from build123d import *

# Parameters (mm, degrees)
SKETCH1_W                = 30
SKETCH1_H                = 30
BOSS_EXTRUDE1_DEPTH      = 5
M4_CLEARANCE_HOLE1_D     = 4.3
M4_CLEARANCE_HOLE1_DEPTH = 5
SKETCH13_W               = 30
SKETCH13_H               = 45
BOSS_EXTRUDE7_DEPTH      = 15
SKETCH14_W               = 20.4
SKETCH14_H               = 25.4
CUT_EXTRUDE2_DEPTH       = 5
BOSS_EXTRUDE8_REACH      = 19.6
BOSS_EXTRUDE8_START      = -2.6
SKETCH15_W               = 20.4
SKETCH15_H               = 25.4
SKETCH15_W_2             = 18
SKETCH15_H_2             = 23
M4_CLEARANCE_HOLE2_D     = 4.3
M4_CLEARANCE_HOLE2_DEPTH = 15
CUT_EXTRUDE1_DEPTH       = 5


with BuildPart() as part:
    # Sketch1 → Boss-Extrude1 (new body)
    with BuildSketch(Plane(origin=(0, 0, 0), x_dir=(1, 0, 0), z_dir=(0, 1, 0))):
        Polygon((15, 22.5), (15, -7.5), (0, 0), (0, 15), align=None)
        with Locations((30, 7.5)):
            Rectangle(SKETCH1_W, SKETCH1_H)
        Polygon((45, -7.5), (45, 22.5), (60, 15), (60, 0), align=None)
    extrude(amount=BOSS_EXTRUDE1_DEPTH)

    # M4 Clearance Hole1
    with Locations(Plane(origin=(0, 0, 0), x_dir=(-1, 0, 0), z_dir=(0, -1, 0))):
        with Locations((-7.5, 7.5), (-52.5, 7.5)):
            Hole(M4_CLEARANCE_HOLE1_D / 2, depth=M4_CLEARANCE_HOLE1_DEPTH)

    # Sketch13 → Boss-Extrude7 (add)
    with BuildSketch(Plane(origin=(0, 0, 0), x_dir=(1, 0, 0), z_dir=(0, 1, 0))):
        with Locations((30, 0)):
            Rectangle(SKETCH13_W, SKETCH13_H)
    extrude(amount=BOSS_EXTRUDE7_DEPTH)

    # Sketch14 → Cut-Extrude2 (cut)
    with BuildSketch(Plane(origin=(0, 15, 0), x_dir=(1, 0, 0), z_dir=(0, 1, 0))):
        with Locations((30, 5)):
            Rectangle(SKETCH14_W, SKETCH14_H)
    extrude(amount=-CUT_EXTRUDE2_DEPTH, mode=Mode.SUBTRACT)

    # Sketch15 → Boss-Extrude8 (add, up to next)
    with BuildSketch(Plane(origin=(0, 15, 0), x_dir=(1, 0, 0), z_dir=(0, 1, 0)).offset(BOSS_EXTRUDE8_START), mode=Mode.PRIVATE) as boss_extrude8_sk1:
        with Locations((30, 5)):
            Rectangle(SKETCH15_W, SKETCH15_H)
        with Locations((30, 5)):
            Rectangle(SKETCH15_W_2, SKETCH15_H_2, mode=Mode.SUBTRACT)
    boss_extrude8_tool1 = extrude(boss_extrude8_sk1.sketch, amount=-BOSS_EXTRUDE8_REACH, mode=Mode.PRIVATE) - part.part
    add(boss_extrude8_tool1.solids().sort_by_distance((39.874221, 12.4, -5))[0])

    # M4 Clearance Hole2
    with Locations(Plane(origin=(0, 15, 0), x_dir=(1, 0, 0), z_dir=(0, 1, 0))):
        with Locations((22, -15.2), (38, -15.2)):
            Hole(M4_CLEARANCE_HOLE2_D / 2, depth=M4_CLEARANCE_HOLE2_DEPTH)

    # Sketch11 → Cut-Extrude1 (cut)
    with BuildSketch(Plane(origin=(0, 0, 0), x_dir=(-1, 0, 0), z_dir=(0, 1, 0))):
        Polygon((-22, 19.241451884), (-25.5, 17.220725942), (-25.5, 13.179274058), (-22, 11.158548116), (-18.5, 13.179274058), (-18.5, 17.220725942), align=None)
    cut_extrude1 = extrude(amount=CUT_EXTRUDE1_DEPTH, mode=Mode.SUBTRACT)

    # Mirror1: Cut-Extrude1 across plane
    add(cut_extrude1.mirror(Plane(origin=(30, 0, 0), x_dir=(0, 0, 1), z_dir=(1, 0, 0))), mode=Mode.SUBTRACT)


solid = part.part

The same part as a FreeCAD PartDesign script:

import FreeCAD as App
import Part
import Sketcher
Q = App.Units.Quantity


def add_polygon(sketch, points):
    """Adds a closed chain of lines whose ends are joined by coincident constraints."""
    first, n = sketch.GeometryCount, len(points)
    for a, b in zip(points, points[1:] + points[:1]):
        sketch.addGeometry(Part.LineSegment(App.Vector(*a, 0), App.Vector(*b, 0)), False)
    for i in range(n):
        sketch.addConstraint(Sketcher.Constraint("Coincident", first + i, 2, first + (i + 1) % n, 1))

doc = App.newDocument("Part")
body = doc.addObject("PartDesign::Body", "Body")

# Sketch on XZ plane
sketch1 = doc.addObject("Sketcher::SketchObject", "Sketch")
body.addObject(sketch1)
sketch1.AttachmentSupport = (doc.XZ_Plane, [""])
sketch1.MapMode = "FlatFace"
add_polygon(sketch1, [(0, 0), (15, 8), (45, 8), (60, 0), (60, -15), (45, -22), (15, -22), (0, -15)])  # lines 0-7
sketch1.addConstraint(Sketcher.Constraint("Horizontal", 1))
sketch1.addConstraint(Sketcher.Constraint("Vertical", 3))
sketch1.addConstraint(Sketcher.Constraint("Horizontal", 5))
sketch1.addConstraint(Sketcher.Constraint("Vertical", 7))
sketch1.addConstraint(Sketcher.Constraint("Coincident", 7, 2, -1, 1))
sketch1.addConstraint(Sketcher.Constraint("PointOnObject", 2, 2, -1))
sketch1.addConstraint(Sketcher.Constraint("Parallel", 0, 4))
sketch1.addConstraint(Sketcher.Constraint("Parallel", 2, 6))
sketch1.addConstraint(Sketcher.Constraint("Horizontal", 3, 2, 6, 2))
sketch1.addConstraint(Sketcher.Constraint("Vertical", 1, 2, 4, 2))
sketch1.addConstraint(Sketcher.Constraint("Vertical", 0, 2, 5, 2))
sketch1.addConstraint(Sketcher.Constraint("DistanceX", 1, 1, 1, 2, 30.0))
sketch1.addConstraint(Sketcher.Constraint("DistanceY", 3, 2, 3, 1, 15.0))
sketch1.addConstraint(Sketcher.Constraint("DistanceX", -1, 1, 0, 2, 15.0))
sketch1.addConstraint(Sketcher.Constraint("DistanceY", 4, 2, 1, 2, 30.0))
pad1 = doc.addObject("PartDesign::Pad", "Pad")
body.addObject(pad1)
pad1.Profile = sketch1
pad1.Length = 5
pad1.Reversed = True

# Sketch on XZ plane
sketch2 = doc.addObject("Sketcher::SketchObject", "Sketch001")
body.addObject(sketch2)
sketch2.AttachmentSupport = (doc.XZ_Plane, [""])
sketch2.MapMode = "FlatFace"
sketch2.addGeometry(Part.Circle(App.Vector(7.5, -7.5, 0), App.Vector(0, 0, 1), 2.1), False)
sketch2.addGeometry(Part.Circle(App.Vector(52.5, -7.5, 0), App.Vector(0, 0, 1), 2.1), False)
sketch2.addConstraint(Sketcher.Constraint("Equal", 0, 1))
sketch2.addConstraint(Sketcher.Constraint("Horizontal", 0, 3, 1, 3))
sketch2.addConstraint(Sketcher.Constraint("Diameter", 0, 4.3))
sketch2.addConstraint(Sketcher.Constraint("DistanceX", 0, 3, 1, 3, 45.0))
sketch2.addConstraint(Sketcher.Constraint("DistanceX", -1, 1, 0, 3, 7.5))
sketch2.addConstraint(Sketcher.Constraint("DistanceY", 0, 3, -1, 1, 7.5))
doc.recompute()
hole = doc.addObject("PartDesign::Hole", "Hole")
body.addObject(hole)
hole.Profile = sketch2
hole.ThreadType = "None"
hole.Diameter = 4.3
hole.DepthType = "Dimension"
hole.Depth = 5
hole.DrillPoint = "Flat"

# Sketch on XZ plane
sketch3 = doc.addObject("Sketcher::SketchObject", "Sketch002")
body.addObject(sketch3)
sketch3.AttachmentSupport = (doc.XZ_Plane, [""])
sketch3.MapMode = "FlatFace"
add_polygon(sketch3, [(15, -22), (15, 22), (45, 22), (45, -22)])  # lines 0-3
sketch3.addConstraint(Sketcher.Constraint("Vertical", 0))
sketch3.addConstraint(Sketcher.Constraint("Horizontal", 1))
sketch3.addConstraint(Sketcher.Constraint("Vertical", 2))
sketch3.addConstraint(Sketcher.Constraint("Horizontal", 3))
sketch3.addConstraint(Sketcher.Constraint("DistanceX", 1, 1, 1, 2, 30.0))
sketch3.addConstraint(Sketcher.Constraint("DistanceY", 0, 1, 0, 2, 45.0))
sketch3.addConstraint(Sketcher.Constraint("DistanceX", -1, 1, 0, 2, 15.0))
sketch3.addConstraint(Sketcher.Constraint("DistanceY", -1, 1, 0, 2, 22.5))
pad2 = doc.addObject("PartDesign::Pad", "Pad001")
body.addObject(pad2)
pad2.Profile = sketch3
pad2.Length = 15
pad2.Reversed = True

# Sketch on XZ plane
sketch4 = doc.addObject("Sketcher::SketchObject", "Sketch003")
body.addObject(sketch4)
sketch4.AttachmentSupport = (doc.XZ_Plane, [""])
sketch4.MapMode = "FlatFace"
sketch4.AttachmentOffset = App.Placement(App.Vector(0, 0, -15), App.Rotation())
add_polygon(sketch4, [(20, -18), (20, 8), (40, 8), (40, -18)])  # lines 0-3
sketch4.addConstraint(Sketcher.Constraint("Vertical", 0))
sketch4.addConstraint(Sketcher.Constraint("Horizontal", 1))
sketch4.addConstraint(Sketcher.Constraint("Vertical", 2))
sketch4.addConstraint(Sketcher.Constraint("Horizontal", 3))
sketch4.addConstraint(Sketcher.Constraint("DistanceX", 1, 1, 1, 2, 20.4))
sketch4.addConstraint(Sketcher.Constraint("DistanceY", 0, 1, 0, 2, 25.4))
sketch4.addConstraint(Sketcher.Constraint("DistanceX", -1, 1, 0, 2, 19.8))
sketch4.addConstraint(Sketcher.Constraint("DistanceY", -1, 1, 0, 2, 7.7))
pocket1 = doc.addObject("PartDesign::Pocket", "Pocket")
body.addObject(pocket1)
pocket1.Profile = sketch4
pocket1.Length = 5
pocket1.Reversed = True

# Sketch on XZ plane
sketch5 = doc.addObject("Sketcher::SketchObject", "Sketch004")
body.addObject(sketch5)
sketch5.AttachmentSupport = (doc.XZ_Plane, [""])
sketch5.MapMode = "FlatFace"
sketch5.AttachmentOffset = App.Placement(App.Vector(0, 0, -12.4), App.Rotation())
add_polygon(sketch5, [(20, -18), (20, 8), (40, 8), (40, -18)])  # lines 0-3
add_polygon(sketch5, [(39, 6), (21, 6), (21, -16), (39, -16)])  # lines 4-7
sketch5.addConstraint(Sketcher.Constraint("Vertical", 0))
sketch5.addConstraint(Sketcher.Constraint("Horizontal", 1))
sketch5.addConstraint(Sketcher.Constraint("Vertical", 2))
sketch5.addConstraint(Sketcher.Constraint("Horizontal", 3))
sketch5.addConstraint(Sketcher.Constraint("Horizontal", 4))
sketch5.addConstraint(Sketcher.Constraint("Vertical", 5))
sketch5.addConstraint(Sketcher.Constraint("Horizontal", 6))
sketch5.addConstraint(Sketcher.Constraint("Vertical", 7))
sketch5.addConstraint(Sketcher.Constraint("DistanceX", 4, 2, 4, 1, 18.0))
sketch5.addConstraint(Sketcher.Constraint("DistanceY", 5, 2, 5, 1, 23.0))
sketch5.addConstraint(Sketcher.Constraint("DistanceX", 1, 1, 1, 2, 20.4))
sketch5.addConstraint(Sketcher.Constraint("DistanceY", 0, 1, 0, 2, 25.4))
sketch5.addConstraint(Sketcher.Constraint("DistanceX", -1, 1, 4, 2, 21.0))
sketch5.addConstraint(Sketcher.Constraint("DistanceX", -1, 1, 0, 2, 19.8))
sketch5.addConstraint(Sketcher.Constraint("DistanceY", -1, 1, 0, 2, 7.7))
sketch5.addConstraint(Sketcher.Constraint("DistanceY", -1, 1, 4, 2, 6.5))
pad3 = doc.addObject("PartDesign::Pad", "Pad002")
body.addObject(pad3)
pad3.Profile = sketch5
pad3.Type = "UpToFirst"

# Sketch on XZ plane
sketch6 = doc.addObject("Sketcher::SketchObject", "Sketch005")
body.addObject(sketch6)
sketch6.AttachmentSupport = (doc.XZ_Plane, [""])
sketch6.MapMode = "FlatFace"
sketch6.AttachmentOffset = App.Placement(App.Vector(0, 0, -15), App.Rotation())
sketch6.addGeometry(Part.Circle(App.Vector(22, 15.2, 0), App.Vector(0, 0, 1), 2.1), False)
sketch6.addGeometry(Part.Circle(App.Vector(38, 15.2, 0), App.Vector(0, 0, 1), 2.1), False)
sketch6.addConstraint(Sketcher.Constraint("Equal", 0, 1))
sketch6.addConstraint(Sketcher.Constraint("Horizontal", 0, 3, 1, 3))
sketch6.addConstraint(Sketcher.Constraint("Diameter", 0, 4.3))
sketch6.addConstraint(Sketcher.Constraint("DistanceX", -1, 1, 0, 3, 22.0))
sketch6.addConstraint(Sketcher.Constraint("DistanceX", -1, 1, 1, 3, 38.0))
sketch6.addConstraint(Sketcher.Constraint("DistanceY", -1, 1, 0, 3, 15.2))
doc.recompute()
hole2 = doc.addObject("PartDesign::Hole", "Hole001")
body.addObject(hole2)
hole2.Profile = sketch6
hole2.ThreadType = "None"
hole2.Diameter = 4.3
hole2.DepthType = "Dimension"
hole2.Depth = 15
hole2.DrillPoint = "Flat"
hole2.Reversed = True

# Sketch on XZ plane
sketch7 = doc.addObject("Sketcher::SketchObject", "Sketch006")
body.addObject(sketch7)
sketch7.AttachmentSupport = (doc.XZ_Plane, [""])
sketch7.MapMode = "FlatFace"
add_polygon(sketch7, [(22, 19.2), (25.5, 17.2), (25.5, 13.2), (22, 11.2), (18.5, 13.2), (18.5, 17.2)])  # lines 0-5
sketch7.addConstraint(Sketcher.Constraint("Vertical", 1))
sketch7.addConstraint(Sketcher.Constraint("Vertical", 4))
sketch7.addConstraint(Sketcher.Constraint("Parallel", 0, 3))
sketch7.addConstraint(Sketcher.Constraint("Parallel", 2, 5))
sketch7.addConstraint(Sketcher.Constraint("Horizontal", 1, 2, 3, 2))
sketch7.addConstraint(Sketcher.Constraint("Horizontal", 0, 2, 4, 2))
sketch7.addConstraint(Sketcher.Constraint("Vertical", 2, 2, 5, 2))
sketch7.addConstraint(Sketcher.Constraint("Angle", 0, Q("-30 deg")))
sketch7.addConstraint(Sketcher.Constraint("DistanceX", -1, 1, 2, 2, 22.0))
sketch7.addConstraint(Sketcher.Constraint("DistanceX", 3, 2, 1, 2, 7.0))
sketch7.addConstraint(Sketcher.Constraint("DistanceY", 1, 2, 1, 1, 4.041452))
sketch7.addConstraint(Sketcher.Constraint("DistanceY", -1, 1, 2, 2, 11.158548))
pocket2 = doc.addObject("PartDesign::Pocket", "Pocket001")
body.addObject(pocket2)
pocket2.Profile = sketch7
pocket2.Length = 5
doc.recompute()

datumplane = doc.addObject("PartDesign::Plane", "DatumPlane")
body.addObject(datumplane)
datumplane.AttachmentSupport = (doc.YZ_Plane, [""])
datumplane.MapMode = "FlatFace"
datumplane.AttachmentOffset = App.Placement(App.Vector(0, 0, 30), App.Rotation())
mirrored = doc.addObject("PartDesign::Mirrored", "Mirrored")
body.addObject(mirrored)
mirrored.Originals = [pocket2]
mirrored.MirrorPlane = (datumplane, [""])
body.Tip = mirrored

doc.recompute()
